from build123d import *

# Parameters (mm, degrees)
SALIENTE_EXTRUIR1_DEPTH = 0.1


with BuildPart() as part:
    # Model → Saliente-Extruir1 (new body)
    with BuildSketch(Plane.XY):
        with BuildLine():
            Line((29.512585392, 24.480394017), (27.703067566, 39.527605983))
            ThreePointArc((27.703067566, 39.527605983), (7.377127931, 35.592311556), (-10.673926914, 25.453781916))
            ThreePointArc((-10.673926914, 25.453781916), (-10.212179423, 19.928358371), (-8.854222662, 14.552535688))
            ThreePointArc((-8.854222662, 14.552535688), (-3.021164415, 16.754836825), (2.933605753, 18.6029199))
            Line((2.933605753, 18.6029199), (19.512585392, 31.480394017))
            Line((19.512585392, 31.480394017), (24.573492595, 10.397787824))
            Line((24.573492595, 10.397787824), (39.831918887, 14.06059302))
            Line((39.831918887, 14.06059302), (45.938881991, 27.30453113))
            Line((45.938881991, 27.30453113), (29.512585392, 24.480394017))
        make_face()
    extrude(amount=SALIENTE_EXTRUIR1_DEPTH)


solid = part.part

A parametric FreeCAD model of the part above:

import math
import FreeCAD as App
import Part
import Sketcher
from FreeCAD import Vector

doc = App.newDocument("Part")
body = doc.addObject("PartDesign::Body", "Body")

# Sketch on XY plane
sketch1 = doc.addObject("Sketcher::SketchObject", "Sketch")
body.addObject(sketch1)
sketch1.AttachmentSupport = (doc.XY_Plane, [""])
sketch1.MapMode = "FlatFace"
sketch1.addGeometry([
    Part.LineSegment(Vector(30, 24, 0), Vector(28, 40, 0)),  # 0
    Part.ArcOfCircle(Part.Circle(Vector(30, -25, 0), Vector(0, 0, 1), 65), math.radians(92), math.radians(129)),  # 1
    Part.ArcOfCircle(Part.Circle(Vector(23, 25, 0), Vector(0, 0, 1), 34), math.radians(-179.92), math.radians(-161.12)),  # 2
    Part.ArcOfCircle(Part.Circle(Vector(31, -81, 0), Vector(0, 0, 1), 104), math.radians(105.52), math.radians(112.41)),  # 3
    Part.LineSegment(Vector(3, 19, 0), Vector(20, 31, 0)),  # 4
    Part.LineSegment(Vector(20, 31, 0), Vector(25, 10, 0)),  # 5
    Part.LineSegment(Vector(25, 10, 0), Vector(40, 14, 0)),  # 6
    Part.LineSegment(Vector(40, 14, 0), Vector(46, 27, 0)),  # 7
    Part.LineSegment(Vector(46, 27, 0), Vector(30, 24, 0)),  # 8
], False)
sketch1.addConstraint([
    Sketcher.Constraint("Coincident", 0, 2, 1, 1),
    Sketcher.Constraint("Coincident", 1, 2, 2, 1),
    Sketcher.Constraint("Coincident", 2, 2, 3, 2),
    Sketcher.Constraint("Coincident", 3, 1, 4, 1),
    Sketcher.Constraint("Coincident", 4, 2, 5, 1),
    Sketcher.Constraint("Coincident", 5, 2, 6, 1),
    Sketcher.Constraint("Coincident", 6, 2, 7, 1),
    Sketcher.Constraint("Coincident", 7, 2, 8, 1),
    Sketcher.Constraint("Coincident", 8, 2, 0, 1),
    Sketcher.Constraint("Perpendicular", 5, 6),
    Sketcher.Constraint("DistanceX", 4, 2, 8, 2, 10.0),
    Sketcher.Constraint("DistanceY", 8, 2, 4, 2, 7.0),
    Sketcher.Constraint("Radius", 2, 33.83578),
    Sketcher.Constraint("Radius", 1, 64.873123),
    Sketcher.Constraint("Radius", 3, 103.791698),
    Sketcher.Constraint("Distance", 6, 15.6919),
    Sketcher.Constraint("DistanceY", 6, 2, 4, 2, 17.419801),
    Sketcher.Constraint("Distance", 7, 14.584132),
    Sketcher.Constraint("DistanceX", -1, 1, 3, 3, 30.706892),
    Sketcher.Constraint("DistanceY", -1, 1, 1, 2, 25.453782),
    Sketcher.Constraint("DistanceY", -1, 1, 3, 1, 18.60292),
    Sketcher.Constraint("DistanceX", -1, 1, 6, 2, 39.831919),
    Sketcher.Constraint("DistanceX", -1, 1, 7, 2, 45.938882),
    Sketcher.Constraint("DistanceY", -1, 1, 7, 2, 27.304531),
    Sketcher.Constraint("DistanceX", 2, 3, 1, 3, 6.55134),
    Sketcher.Constraint("DistanceX", 1, 3, 3, 3, 0.993729),
    Sketcher.Constraint("DistanceY", 3, 3, 2, 3, 106.903241),
    Sketcher.Constraint("DistanceY", 2, 3, 0, 2, 14.02825),
    Sketcher.Constraint("DistanceX", 2, 2, 0, 2, 36.55729),
    Sketcher.Constraint("DistanceX", 3, 1, 4, 2, 16.57898),
])
pad1 = doc.addObject("PartDesign::Pad", "Pad")
body.addObject(pad1)
pad1.Profile = sketch1
pad1.Length = 0.1

doc.recompute()
